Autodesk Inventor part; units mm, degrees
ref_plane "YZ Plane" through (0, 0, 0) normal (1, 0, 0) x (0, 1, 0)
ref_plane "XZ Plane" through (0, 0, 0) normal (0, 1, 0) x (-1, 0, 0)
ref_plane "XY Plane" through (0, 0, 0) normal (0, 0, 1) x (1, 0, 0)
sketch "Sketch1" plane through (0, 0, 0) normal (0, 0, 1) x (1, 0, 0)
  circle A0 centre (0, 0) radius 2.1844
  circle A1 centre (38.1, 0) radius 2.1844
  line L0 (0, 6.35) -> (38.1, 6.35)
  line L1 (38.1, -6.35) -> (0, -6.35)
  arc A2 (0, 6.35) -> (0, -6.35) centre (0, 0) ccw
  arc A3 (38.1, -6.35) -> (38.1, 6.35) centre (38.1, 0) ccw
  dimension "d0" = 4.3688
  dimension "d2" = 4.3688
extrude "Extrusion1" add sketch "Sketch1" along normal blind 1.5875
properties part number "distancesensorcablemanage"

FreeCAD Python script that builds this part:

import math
import FreeCAD as App
import Part
import Sketcher
from FreeCAD import Vector
Q = App.Units.Quantity

doc = App.newDocument("Part")
body = doc.addObject("PartDesign::Body", "Body")

sketch1 = body.newObject("Sketcher::SketchObject", "Sketch")
sketch1.AttachmentSupport = (doc.getObject("XY_Plane"), [""])
sketch1.MapMode = "FlatFace"
sketch1.addGeometry(Part.LineSegment(Vector(38.1, 6.3, 0), Vector(0, 6.3, 0)), False)
sketch1.addGeometry(Part.ArcOfCircle(Part.Circle(Vector(0, 0, 0), Vector(0, 0, 1), 6.3), math.radians(90), math.radians(270)), False)
sketch1.addGeometry(Part.LineSegment(Vector(0, -6.3, 0), Vector(38.1, -6.3, 0)), False)
sketch1.addGeometry(Part.ArcOfCircle(Part.Circle(Vector(38.1, 0, 0), Vector(0, 0, 1), 6.3), math.radians(-90), math.radians(90)), False)
sketch1.addGeometry(Part.Circle(Vector(0, 0, 0), Vector(0, 0, 1), 2.2), False)
sketch1.addGeometry(Part.Circle(Vector(38.1, 0, 0), Vector(0, 0, 1), 2.2), False)
sketch1.addConstraint(Sketcher.Constraint("Tangent", 0, 2, 1, 1))
sketch1.addConstraint(Sketcher.Constraint("Tangent", 1, 2, 2, 1))
sketch1.addConstraint(Sketcher.Constraint("Tangent", 2, 2, 3, 1))
sketch1.addConstraint(Sketcher.Constraint("Tangent", 3, 2, 0, 1))
sketch1.addConstraint(Sketcher.Constraint("Horizontal", 0))
sketch1.addConstraint(Sketcher.Constraint("Horizontal", 2))
sketch1.addConstraint(Sketcher.Constraint("Coincident", 1, 3, -1, 1))
sketch1.addConstraint(Sketcher.Constraint("Coincident", 4, 3, -1, 1))
sketch1.addConstraint(Sketcher.Constraint("Coincident", 5, 3, 3, 3))
sketch1.addConstraint(Sketcher.Constraint("Equal", 4, 5))
sketch1.addConstraint(Sketcher.Constraint("Diameter", 4, Q("0.172 in")))
sketch1.addConstraint(Sketcher.Constraint("Radius", 1, Q("0.25 in")))
sketch1.addConstraint(Sketcher.Constraint("DistanceX", 0, 2, 0, 1, Q("1.5 in")))
pad1 = body.newObject("PartDesign::Pad", "Pad")
pad1.Profile = sketch1
pad1.Length = Q("0.0625 in")

doc.recompute()
